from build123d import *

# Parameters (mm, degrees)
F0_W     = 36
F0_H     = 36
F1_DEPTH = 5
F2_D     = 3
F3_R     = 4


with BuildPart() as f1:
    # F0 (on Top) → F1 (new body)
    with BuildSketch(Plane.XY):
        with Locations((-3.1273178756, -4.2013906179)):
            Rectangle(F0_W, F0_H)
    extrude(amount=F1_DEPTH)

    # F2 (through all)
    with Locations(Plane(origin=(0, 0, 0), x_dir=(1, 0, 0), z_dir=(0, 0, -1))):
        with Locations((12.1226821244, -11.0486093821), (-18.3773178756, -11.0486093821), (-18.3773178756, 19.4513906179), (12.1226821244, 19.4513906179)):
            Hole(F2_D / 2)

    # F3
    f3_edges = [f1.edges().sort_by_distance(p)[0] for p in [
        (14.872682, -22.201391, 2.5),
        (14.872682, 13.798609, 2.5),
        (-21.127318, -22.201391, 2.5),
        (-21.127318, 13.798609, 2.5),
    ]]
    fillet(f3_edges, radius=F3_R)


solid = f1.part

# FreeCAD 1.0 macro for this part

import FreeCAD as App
import Part
import Sketcher

V = App.Vector
Q = App.Units.Quantity


def edges_at(feature, points):
    """Names of the edges that pass closest to the given points."""
    edges = feature.Shape.Edges
    near = lambda p: min(range(len(edges)), key=lambda i: edges[i].distToShape(Part.Vertex(*p))[0])
    return sorted({f"Edge{near(p) + 1}" for p in points})


def add_polygon(sketch, points):
    """Adds a closed chain of lines whose ends are joined by coincident constraints."""
    first, n = sketch.GeometryCount, len(points)
    for a, b in zip(points, points[1:] + points[:1]):
        sketch.addGeometry(Part.LineSegment(App.Vector(*a, 0), App.Vector(*b, 0)), False)
    for i in range(n):
        sketch.addConstraint(Sketcher.Constraint("Coincident", first + i, 2, first + (i + 1) % n, 1))

doc = App.newDocument("Part")
body = doc.addObject("PartDesign::Body", "Body")

# Sketch on XY plane
sketch1 = body.newObject("Sketcher::SketchObject", "Sketch")
sketch1.AttachmentSupport = (doc.getObject("XY_Plane"), [""])
sketch1.MapMode = "FlatFace"
add_polygon(sketch1, [(-21.127318, 13.798609), (-21.127318, -22.201391), (14.872682, -22.201391), (14.872682, 13.798609)])  # lines 0-3
sketch1.addConstraint(Sketcher.Constraint("Vertical", 0))
sketch1.addConstraint(Sketcher.Constraint("Horizontal", 1))
sketch1.addConstraint(Sketcher.Constraint("Vertical", 2))
sketch1.addConstraint(Sketcher.Constraint("Horizontal", 3))
sketch1.addConstraint(Sketcher.Constraint("Equal", 3, 0))
sketch1.addConstraint(Sketcher.Constraint("DistanceX", 1, 1, 1, 2, Q("36 mm")))
sketch1.addConstraint(Sketcher.Constraint("DistanceY", 0, 2, -1, 1, Q("22.201391 mm")))
sketch1.addConstraint(Sketcher.Constraint("DistanceX", 0, 2, -1, 1, Q("21.127318 mm")))
pad1 = body.newObject("PartDesign::Pad", "Pad")
pad1.Profile = sketch1
pad1.Length = 5

# Sketch on XY plane
sketch2 = body.newObject("Sketcher::SketchObject", "Sketch001")
sketch2.AttachmentSupport = (doc.getObject("XY_Plane"), [""])
sketch2.MapMode = "FlatFace"
sketch2.addGeometry(Part.Circle(V(12.122682, 11.048609, 0), V(0, 0, 1), 1.5), False)
sketch2.addGeometry(Part.Circle(V(-18.377318, 11.048609, 0), V(0, 0, 1), 1.5), False)
sketch2.addGeometry(Part.Circle(V(-18.377318, -19.451391, 0), V(0, 0, 1), 1.5), False)
sketch2.addGeometry(Part.Circle(V(12.122682, -19.451391, 0), V(0, 0, 1), 1.5), False)
sketch2.addConstraint(Sketcher.Constraint("Equal", 0, 1))
sketch2.addConstraint(Sketcher.Constraint("Equal", 1, 2))
sketch2.addConstraint(Sketcher.Constraint("Equal", 2, 3))
sketch2.addConstraint(Sketcher.Constraint("Horizontal", 0, 3, 1, 3))
sketch2.addConstraint(Sketcher.Constraint("Horizontal", 2, 3, 3, 3))
sketch2.addConstraint(Sketcher.Constraint("Vertical", 1, 3, 2, 3))
sketch2.addConstraint(Sketcher.Constraint("Vertical", 0, 3, 3, 3))
sketch2.addConstraint(Sketcher.Constraint("Diameter", 0, Q("3 mm")))
sketch2.addConstraint(Sketcher.Constraint("DistanceX", 1, 3, 0, 3, Q("30.5 mm")))
sketch2.addConstraint(Sketcher.Constraint("DistanceY", 2, 3, 1, 3, Q("30.5 mm")))
sketch2.addConstraint(Sketcher.Constraint("DistanceY", -1, 1, 0, 3, Q("11.048609 mm")))
sketch2.addConstraint(Sketcher.Constraint("DistanceX", -1, 1, 0, 3, Q("12.122682 mm")))
doc.recompute()
hole = body.newObject("PartDesign::Hole", "Hole")
hole.Profile = sketch2
hole.ThreadType = "None"
hole.Diameter = 3
hole.DepthType = "ThroughAll"
hole.Reversed = True
doc.recompute()

fillet = body.newObject("PartDesign::Fillet", "Fillet")
fillet.Base = (hole, edges_at(hole, [
    (14.873, -22.201, 2.5),
    (14.873, 13.799, 2.5),
    (-21.127, -22.201, 2.5),
    (-21.127, 13.799, 2.5),
]))
fillet.Radius = 4

doc.recompute()
